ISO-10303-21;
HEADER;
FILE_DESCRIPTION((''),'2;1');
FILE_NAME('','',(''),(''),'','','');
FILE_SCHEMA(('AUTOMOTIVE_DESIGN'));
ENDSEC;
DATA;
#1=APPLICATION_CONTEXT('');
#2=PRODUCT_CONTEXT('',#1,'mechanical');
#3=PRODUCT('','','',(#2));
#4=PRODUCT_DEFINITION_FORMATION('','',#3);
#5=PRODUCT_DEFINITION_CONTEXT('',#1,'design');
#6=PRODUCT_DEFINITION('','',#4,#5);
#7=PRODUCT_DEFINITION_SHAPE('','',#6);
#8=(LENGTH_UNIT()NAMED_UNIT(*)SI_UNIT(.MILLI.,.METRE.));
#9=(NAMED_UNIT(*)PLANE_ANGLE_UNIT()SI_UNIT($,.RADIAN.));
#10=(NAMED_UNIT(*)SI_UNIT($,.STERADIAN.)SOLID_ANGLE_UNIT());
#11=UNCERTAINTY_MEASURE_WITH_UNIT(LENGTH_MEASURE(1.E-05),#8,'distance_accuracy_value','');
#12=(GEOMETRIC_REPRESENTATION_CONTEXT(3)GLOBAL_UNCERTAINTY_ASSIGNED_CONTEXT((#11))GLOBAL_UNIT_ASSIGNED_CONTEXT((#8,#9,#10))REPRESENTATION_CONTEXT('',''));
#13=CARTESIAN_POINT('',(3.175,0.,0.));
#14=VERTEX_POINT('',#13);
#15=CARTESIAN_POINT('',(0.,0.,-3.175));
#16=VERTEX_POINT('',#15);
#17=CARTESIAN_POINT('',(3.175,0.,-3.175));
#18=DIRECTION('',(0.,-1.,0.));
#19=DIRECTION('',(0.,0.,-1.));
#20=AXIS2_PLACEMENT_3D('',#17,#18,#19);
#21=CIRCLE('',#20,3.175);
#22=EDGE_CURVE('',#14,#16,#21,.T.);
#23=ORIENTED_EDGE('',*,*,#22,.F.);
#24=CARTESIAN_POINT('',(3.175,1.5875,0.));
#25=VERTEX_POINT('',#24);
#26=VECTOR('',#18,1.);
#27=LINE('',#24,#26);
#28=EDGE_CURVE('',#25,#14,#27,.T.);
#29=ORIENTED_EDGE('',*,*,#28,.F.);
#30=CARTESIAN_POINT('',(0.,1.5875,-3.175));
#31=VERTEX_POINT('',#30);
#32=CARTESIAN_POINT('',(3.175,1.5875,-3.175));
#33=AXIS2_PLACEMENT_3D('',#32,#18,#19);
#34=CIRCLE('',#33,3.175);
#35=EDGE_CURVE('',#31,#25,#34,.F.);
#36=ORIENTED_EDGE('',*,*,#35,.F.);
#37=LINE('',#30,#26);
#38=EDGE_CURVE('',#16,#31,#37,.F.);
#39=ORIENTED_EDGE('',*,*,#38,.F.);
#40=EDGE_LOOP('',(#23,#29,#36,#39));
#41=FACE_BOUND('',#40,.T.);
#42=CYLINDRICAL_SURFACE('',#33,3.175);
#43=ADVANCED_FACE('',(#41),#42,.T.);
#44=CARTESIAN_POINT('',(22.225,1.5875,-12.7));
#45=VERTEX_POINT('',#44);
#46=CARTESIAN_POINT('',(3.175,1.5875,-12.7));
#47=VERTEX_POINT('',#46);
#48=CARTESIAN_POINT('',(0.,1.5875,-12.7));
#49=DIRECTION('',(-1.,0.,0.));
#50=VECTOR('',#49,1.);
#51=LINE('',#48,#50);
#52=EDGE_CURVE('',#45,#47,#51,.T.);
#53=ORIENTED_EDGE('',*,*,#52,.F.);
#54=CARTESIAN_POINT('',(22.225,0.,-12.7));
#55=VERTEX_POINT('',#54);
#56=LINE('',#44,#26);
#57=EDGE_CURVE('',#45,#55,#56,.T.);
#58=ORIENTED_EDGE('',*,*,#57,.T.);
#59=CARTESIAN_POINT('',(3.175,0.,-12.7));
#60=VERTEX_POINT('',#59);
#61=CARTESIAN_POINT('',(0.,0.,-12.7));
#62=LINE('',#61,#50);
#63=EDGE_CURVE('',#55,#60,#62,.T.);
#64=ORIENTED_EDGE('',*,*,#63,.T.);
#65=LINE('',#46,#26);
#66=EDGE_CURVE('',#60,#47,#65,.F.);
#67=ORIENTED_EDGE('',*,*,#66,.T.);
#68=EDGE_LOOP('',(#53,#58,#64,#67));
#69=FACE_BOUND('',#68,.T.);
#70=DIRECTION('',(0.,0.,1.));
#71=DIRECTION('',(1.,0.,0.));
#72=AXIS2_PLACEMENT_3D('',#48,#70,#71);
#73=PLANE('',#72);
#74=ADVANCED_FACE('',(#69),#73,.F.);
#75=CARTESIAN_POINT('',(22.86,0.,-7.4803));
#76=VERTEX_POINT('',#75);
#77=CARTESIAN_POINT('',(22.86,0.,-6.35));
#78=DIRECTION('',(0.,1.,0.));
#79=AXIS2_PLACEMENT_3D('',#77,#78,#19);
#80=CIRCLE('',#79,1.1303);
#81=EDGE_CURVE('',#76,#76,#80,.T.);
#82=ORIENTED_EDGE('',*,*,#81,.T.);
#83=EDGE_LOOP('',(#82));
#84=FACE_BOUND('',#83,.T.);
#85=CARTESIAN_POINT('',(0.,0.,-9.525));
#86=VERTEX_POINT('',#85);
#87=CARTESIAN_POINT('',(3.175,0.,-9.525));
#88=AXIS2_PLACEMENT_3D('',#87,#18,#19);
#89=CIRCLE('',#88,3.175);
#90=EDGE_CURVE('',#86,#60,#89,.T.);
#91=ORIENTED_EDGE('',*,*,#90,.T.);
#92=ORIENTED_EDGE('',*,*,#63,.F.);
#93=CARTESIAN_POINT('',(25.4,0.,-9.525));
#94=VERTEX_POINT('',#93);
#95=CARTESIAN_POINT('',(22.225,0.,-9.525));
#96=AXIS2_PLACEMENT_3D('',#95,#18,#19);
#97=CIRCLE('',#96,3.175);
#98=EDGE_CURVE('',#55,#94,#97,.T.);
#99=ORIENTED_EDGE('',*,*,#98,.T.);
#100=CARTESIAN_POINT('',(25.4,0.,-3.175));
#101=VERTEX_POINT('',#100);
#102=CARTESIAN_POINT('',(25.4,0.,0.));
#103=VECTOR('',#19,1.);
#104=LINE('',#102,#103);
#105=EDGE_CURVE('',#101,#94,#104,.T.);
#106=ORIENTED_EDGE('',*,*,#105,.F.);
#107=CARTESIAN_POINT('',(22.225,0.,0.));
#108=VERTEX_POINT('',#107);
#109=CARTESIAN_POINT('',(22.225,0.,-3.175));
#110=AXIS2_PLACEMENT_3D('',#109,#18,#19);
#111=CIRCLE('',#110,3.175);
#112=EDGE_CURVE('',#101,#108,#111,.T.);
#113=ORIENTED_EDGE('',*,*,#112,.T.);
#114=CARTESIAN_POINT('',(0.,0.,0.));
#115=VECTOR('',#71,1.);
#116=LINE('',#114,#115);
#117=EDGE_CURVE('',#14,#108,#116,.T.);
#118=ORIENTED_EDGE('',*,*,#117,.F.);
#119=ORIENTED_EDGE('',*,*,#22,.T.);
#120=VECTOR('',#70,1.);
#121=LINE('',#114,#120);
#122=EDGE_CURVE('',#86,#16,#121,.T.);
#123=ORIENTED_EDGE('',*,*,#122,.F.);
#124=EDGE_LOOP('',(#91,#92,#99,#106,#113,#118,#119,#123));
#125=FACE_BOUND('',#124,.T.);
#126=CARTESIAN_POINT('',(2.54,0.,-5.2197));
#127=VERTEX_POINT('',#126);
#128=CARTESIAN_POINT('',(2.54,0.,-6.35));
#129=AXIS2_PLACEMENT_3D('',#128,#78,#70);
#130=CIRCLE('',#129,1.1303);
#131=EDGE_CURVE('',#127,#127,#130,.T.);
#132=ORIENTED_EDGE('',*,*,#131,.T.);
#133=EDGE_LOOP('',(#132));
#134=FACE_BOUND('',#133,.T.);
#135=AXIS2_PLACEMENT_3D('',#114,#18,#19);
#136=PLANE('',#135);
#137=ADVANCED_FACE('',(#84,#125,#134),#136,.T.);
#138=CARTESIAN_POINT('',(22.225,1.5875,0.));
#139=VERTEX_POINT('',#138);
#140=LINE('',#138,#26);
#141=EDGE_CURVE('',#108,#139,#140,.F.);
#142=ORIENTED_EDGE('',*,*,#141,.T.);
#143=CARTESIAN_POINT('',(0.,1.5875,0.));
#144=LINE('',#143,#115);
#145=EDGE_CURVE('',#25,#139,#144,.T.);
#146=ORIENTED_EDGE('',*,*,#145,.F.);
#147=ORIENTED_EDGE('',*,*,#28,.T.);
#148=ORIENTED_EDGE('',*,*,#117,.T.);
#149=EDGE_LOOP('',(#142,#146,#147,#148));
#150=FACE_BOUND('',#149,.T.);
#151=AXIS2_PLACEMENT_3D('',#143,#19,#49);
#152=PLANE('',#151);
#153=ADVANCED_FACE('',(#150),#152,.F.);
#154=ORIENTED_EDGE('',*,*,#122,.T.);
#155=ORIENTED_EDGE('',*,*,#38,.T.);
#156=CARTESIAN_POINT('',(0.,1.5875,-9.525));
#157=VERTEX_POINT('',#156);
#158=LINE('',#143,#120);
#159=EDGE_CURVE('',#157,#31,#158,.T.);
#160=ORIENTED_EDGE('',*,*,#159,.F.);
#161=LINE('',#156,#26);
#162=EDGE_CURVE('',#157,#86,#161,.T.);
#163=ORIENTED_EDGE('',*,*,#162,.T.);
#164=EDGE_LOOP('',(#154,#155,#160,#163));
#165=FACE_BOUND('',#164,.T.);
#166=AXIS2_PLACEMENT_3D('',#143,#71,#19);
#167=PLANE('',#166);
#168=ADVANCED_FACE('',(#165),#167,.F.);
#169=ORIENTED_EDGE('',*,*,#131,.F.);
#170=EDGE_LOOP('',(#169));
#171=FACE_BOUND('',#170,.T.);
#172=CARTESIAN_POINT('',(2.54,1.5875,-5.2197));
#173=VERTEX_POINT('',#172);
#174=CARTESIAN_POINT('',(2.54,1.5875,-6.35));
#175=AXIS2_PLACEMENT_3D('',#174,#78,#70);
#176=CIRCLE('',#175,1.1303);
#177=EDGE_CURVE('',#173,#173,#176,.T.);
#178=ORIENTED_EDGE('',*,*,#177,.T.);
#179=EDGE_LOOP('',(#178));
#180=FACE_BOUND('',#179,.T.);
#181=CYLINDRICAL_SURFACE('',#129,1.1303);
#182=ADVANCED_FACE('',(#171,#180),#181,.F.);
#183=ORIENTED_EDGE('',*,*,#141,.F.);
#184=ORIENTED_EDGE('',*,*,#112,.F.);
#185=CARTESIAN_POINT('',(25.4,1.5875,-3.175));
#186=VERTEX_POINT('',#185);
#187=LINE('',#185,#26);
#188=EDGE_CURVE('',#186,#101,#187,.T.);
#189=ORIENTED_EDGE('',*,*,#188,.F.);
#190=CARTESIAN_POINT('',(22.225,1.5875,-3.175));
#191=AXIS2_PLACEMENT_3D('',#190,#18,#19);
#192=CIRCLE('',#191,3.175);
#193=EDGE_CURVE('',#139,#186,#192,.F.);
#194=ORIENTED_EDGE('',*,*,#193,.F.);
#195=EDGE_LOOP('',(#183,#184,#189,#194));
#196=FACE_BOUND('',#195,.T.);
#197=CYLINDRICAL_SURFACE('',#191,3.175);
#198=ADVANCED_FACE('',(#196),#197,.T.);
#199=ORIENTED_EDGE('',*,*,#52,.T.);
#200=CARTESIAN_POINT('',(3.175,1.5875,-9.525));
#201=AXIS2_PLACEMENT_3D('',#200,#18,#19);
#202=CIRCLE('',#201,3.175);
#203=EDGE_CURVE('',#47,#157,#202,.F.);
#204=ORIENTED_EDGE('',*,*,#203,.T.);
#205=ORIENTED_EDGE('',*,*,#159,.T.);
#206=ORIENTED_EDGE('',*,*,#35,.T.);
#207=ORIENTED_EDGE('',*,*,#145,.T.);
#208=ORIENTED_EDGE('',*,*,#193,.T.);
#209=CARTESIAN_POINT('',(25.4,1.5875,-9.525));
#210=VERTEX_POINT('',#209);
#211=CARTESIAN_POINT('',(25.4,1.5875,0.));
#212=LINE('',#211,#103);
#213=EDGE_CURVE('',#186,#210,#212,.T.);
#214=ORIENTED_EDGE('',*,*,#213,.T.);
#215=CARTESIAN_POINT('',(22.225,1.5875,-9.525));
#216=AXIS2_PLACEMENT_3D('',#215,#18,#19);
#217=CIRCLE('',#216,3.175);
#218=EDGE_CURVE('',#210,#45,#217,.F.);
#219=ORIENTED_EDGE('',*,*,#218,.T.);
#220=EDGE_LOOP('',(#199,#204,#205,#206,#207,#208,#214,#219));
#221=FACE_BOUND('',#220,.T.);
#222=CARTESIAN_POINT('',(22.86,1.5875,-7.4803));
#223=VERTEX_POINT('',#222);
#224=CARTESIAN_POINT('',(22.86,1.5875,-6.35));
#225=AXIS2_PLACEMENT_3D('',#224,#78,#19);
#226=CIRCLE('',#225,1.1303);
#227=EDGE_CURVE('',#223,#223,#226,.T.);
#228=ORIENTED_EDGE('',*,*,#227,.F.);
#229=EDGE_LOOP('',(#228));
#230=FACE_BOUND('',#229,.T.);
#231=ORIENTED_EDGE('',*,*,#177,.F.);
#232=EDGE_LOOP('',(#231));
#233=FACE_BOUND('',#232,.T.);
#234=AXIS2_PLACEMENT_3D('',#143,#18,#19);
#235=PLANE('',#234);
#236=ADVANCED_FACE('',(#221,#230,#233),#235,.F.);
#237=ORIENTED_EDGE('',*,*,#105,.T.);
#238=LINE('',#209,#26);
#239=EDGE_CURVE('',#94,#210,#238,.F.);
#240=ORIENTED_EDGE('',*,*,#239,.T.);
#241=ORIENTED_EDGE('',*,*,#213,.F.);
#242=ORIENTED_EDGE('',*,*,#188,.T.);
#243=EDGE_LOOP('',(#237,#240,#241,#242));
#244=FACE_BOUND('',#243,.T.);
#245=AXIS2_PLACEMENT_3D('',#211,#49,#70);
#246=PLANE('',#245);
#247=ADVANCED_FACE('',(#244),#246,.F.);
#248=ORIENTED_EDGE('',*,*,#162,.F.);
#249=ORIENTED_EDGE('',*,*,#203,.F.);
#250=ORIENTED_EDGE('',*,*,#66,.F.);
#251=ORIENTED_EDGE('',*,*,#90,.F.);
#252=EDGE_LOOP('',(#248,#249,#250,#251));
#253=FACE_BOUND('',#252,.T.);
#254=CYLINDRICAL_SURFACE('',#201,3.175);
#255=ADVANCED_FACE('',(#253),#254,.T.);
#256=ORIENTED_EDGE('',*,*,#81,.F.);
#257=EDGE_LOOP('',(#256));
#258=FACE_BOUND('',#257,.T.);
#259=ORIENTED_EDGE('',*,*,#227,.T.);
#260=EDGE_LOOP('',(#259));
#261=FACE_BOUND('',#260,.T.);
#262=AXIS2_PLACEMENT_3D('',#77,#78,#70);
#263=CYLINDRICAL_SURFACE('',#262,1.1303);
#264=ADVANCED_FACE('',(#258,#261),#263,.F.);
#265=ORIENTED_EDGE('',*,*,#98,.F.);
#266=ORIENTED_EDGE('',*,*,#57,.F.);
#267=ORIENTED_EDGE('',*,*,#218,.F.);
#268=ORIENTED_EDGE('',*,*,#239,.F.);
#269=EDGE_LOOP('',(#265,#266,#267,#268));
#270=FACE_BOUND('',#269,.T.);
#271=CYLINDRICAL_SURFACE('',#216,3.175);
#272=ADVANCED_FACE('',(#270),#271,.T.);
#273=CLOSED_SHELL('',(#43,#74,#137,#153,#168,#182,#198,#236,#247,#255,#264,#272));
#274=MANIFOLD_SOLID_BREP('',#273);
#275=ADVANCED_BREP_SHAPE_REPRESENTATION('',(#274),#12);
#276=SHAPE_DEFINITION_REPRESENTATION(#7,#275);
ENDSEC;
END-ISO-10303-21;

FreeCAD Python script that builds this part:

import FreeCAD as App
import Part
import Sketcher
from FreeCAD import Vector
Q = App.Units.Quantity


def edges_at(feature, points):
    """Names of the edges that pass closest to the given points."""
    edges = feature.Shape.Edges
    near = lambda p: min(range(len(edges)), key=lambda i: edges[i].distToShape(Part.Vertex(*p))[0])
    return sorted({f"Edge{near(p) + 1}" for p in points})


def add_polygon(sketch, points):
    """Adds a closed chain of lines whose ends are joined by coincident constraints."""
    first, n = sketch.GeometryCount, len(points)
    for a, b in zip(points, points[1:] + points[:1]):
        sketch.addGeometry(Part.LineSegment(App.Vector(*a, 0), App.Vector(*b, 0)), False)
    for i in range(n):
        sketch.addConstraint(Sketcher.Constraint("Coincident", first + i, 2, first + (i + 1) % n, 1))

doc = App.newDocument("Part")
body = doc.addObject("PartDesign::Body", "Body")

sketch1 = body.newObject("Sketcher::SketchObject", "Sketch")
sketch1.AttachmentSupport = (doc.getObject("XZ_Plane"), [""])
sketch1.MapMode = "FlatFace"
add_polygon(sketch1, [(0, -13), (0, 0), (25, 0), (25, -13)])
sketch1.addConstraint([
    Sketcher.Constraint("Vertical", 0),
    Sketcher.Constraint("Horizontal", 1),
    Sketcher.Constraint("Vertical", 2),
    Sketcher.Constraint("Horizontal", 3),
    Sketcher.Constraint("Coincident", 0, 2, -1, 1),
    Sketcher.Constraint("DistanceX", 1, 1, 1, 2, Q("1 in")),
    Sketcher.Constraint("DistanceY", 0, 1, 0, 2, Q("0.5 in")),
])
pad1 = body.newObject("PartDesign::Pad", "Pad")
pad1.Profile = sketch1
pad1.Length = Q("0.0625 in")
pad1.Reversed = True
doc.recompute()

fillet = body.newObject("PartDesign::Fillet", "Fillet")
fillet.Base = (pad1, edges_at(pad1, [
    (0, 0.794, -12.7),
    (25.4, 0.794, -12.7),
    (25.4, 0.794, 0),
    (0, 0.794, 0),
]))
fillet.Radius = Q("0.125 in")

sketch2 = body.newObject("Sketcher::SketchObject", "Sketch001")
sketch2.AttachmentSupport = (doc.getObject("XZ_Plane"), [""])
sketch2.MapMode = "FlatFace"
sketch2.AttachmentOffset = App.Placement(Vector(0, 0, -0.0625 * 25.4), App.Rotation())
sketch2.addGeometry([
    Part.Circle(Vector(2.5, -6.3, 0), Vector(0, 0, 1), 1.1),
    Part.Circle(Vector(22.9, -6.3, 0), Vector(0, 0, 1), 1.1),
], False)
sketch2.addConstraint([
    Sketcher.Constraint("Equal", 0, 1),
    Sketcher.Constraint("Horizontal", 0, 3, 1, 3),
    Sketcher.Constraint("Diameter", 0, Q("0.089 in")),
    Sketcher.Constraint("DistanceX", -1, 1, 0, 3, Q("0.1 in")),
    Sketcher.Constraint("DistanceX", -1, 1, 1, 3, Q("0.9 in")),
    Sketcher.Constraint("DistanceY", 0, 3, -1, 1, Q("0.25 in")),
])
pocket1 = body.newObject("PartDesign::Pocket", "Pocket")
pocket1.Profile = sketch2
pocket1.Type = "ThroughAll"
pocket1.Reversed = True

doc.recompute()
